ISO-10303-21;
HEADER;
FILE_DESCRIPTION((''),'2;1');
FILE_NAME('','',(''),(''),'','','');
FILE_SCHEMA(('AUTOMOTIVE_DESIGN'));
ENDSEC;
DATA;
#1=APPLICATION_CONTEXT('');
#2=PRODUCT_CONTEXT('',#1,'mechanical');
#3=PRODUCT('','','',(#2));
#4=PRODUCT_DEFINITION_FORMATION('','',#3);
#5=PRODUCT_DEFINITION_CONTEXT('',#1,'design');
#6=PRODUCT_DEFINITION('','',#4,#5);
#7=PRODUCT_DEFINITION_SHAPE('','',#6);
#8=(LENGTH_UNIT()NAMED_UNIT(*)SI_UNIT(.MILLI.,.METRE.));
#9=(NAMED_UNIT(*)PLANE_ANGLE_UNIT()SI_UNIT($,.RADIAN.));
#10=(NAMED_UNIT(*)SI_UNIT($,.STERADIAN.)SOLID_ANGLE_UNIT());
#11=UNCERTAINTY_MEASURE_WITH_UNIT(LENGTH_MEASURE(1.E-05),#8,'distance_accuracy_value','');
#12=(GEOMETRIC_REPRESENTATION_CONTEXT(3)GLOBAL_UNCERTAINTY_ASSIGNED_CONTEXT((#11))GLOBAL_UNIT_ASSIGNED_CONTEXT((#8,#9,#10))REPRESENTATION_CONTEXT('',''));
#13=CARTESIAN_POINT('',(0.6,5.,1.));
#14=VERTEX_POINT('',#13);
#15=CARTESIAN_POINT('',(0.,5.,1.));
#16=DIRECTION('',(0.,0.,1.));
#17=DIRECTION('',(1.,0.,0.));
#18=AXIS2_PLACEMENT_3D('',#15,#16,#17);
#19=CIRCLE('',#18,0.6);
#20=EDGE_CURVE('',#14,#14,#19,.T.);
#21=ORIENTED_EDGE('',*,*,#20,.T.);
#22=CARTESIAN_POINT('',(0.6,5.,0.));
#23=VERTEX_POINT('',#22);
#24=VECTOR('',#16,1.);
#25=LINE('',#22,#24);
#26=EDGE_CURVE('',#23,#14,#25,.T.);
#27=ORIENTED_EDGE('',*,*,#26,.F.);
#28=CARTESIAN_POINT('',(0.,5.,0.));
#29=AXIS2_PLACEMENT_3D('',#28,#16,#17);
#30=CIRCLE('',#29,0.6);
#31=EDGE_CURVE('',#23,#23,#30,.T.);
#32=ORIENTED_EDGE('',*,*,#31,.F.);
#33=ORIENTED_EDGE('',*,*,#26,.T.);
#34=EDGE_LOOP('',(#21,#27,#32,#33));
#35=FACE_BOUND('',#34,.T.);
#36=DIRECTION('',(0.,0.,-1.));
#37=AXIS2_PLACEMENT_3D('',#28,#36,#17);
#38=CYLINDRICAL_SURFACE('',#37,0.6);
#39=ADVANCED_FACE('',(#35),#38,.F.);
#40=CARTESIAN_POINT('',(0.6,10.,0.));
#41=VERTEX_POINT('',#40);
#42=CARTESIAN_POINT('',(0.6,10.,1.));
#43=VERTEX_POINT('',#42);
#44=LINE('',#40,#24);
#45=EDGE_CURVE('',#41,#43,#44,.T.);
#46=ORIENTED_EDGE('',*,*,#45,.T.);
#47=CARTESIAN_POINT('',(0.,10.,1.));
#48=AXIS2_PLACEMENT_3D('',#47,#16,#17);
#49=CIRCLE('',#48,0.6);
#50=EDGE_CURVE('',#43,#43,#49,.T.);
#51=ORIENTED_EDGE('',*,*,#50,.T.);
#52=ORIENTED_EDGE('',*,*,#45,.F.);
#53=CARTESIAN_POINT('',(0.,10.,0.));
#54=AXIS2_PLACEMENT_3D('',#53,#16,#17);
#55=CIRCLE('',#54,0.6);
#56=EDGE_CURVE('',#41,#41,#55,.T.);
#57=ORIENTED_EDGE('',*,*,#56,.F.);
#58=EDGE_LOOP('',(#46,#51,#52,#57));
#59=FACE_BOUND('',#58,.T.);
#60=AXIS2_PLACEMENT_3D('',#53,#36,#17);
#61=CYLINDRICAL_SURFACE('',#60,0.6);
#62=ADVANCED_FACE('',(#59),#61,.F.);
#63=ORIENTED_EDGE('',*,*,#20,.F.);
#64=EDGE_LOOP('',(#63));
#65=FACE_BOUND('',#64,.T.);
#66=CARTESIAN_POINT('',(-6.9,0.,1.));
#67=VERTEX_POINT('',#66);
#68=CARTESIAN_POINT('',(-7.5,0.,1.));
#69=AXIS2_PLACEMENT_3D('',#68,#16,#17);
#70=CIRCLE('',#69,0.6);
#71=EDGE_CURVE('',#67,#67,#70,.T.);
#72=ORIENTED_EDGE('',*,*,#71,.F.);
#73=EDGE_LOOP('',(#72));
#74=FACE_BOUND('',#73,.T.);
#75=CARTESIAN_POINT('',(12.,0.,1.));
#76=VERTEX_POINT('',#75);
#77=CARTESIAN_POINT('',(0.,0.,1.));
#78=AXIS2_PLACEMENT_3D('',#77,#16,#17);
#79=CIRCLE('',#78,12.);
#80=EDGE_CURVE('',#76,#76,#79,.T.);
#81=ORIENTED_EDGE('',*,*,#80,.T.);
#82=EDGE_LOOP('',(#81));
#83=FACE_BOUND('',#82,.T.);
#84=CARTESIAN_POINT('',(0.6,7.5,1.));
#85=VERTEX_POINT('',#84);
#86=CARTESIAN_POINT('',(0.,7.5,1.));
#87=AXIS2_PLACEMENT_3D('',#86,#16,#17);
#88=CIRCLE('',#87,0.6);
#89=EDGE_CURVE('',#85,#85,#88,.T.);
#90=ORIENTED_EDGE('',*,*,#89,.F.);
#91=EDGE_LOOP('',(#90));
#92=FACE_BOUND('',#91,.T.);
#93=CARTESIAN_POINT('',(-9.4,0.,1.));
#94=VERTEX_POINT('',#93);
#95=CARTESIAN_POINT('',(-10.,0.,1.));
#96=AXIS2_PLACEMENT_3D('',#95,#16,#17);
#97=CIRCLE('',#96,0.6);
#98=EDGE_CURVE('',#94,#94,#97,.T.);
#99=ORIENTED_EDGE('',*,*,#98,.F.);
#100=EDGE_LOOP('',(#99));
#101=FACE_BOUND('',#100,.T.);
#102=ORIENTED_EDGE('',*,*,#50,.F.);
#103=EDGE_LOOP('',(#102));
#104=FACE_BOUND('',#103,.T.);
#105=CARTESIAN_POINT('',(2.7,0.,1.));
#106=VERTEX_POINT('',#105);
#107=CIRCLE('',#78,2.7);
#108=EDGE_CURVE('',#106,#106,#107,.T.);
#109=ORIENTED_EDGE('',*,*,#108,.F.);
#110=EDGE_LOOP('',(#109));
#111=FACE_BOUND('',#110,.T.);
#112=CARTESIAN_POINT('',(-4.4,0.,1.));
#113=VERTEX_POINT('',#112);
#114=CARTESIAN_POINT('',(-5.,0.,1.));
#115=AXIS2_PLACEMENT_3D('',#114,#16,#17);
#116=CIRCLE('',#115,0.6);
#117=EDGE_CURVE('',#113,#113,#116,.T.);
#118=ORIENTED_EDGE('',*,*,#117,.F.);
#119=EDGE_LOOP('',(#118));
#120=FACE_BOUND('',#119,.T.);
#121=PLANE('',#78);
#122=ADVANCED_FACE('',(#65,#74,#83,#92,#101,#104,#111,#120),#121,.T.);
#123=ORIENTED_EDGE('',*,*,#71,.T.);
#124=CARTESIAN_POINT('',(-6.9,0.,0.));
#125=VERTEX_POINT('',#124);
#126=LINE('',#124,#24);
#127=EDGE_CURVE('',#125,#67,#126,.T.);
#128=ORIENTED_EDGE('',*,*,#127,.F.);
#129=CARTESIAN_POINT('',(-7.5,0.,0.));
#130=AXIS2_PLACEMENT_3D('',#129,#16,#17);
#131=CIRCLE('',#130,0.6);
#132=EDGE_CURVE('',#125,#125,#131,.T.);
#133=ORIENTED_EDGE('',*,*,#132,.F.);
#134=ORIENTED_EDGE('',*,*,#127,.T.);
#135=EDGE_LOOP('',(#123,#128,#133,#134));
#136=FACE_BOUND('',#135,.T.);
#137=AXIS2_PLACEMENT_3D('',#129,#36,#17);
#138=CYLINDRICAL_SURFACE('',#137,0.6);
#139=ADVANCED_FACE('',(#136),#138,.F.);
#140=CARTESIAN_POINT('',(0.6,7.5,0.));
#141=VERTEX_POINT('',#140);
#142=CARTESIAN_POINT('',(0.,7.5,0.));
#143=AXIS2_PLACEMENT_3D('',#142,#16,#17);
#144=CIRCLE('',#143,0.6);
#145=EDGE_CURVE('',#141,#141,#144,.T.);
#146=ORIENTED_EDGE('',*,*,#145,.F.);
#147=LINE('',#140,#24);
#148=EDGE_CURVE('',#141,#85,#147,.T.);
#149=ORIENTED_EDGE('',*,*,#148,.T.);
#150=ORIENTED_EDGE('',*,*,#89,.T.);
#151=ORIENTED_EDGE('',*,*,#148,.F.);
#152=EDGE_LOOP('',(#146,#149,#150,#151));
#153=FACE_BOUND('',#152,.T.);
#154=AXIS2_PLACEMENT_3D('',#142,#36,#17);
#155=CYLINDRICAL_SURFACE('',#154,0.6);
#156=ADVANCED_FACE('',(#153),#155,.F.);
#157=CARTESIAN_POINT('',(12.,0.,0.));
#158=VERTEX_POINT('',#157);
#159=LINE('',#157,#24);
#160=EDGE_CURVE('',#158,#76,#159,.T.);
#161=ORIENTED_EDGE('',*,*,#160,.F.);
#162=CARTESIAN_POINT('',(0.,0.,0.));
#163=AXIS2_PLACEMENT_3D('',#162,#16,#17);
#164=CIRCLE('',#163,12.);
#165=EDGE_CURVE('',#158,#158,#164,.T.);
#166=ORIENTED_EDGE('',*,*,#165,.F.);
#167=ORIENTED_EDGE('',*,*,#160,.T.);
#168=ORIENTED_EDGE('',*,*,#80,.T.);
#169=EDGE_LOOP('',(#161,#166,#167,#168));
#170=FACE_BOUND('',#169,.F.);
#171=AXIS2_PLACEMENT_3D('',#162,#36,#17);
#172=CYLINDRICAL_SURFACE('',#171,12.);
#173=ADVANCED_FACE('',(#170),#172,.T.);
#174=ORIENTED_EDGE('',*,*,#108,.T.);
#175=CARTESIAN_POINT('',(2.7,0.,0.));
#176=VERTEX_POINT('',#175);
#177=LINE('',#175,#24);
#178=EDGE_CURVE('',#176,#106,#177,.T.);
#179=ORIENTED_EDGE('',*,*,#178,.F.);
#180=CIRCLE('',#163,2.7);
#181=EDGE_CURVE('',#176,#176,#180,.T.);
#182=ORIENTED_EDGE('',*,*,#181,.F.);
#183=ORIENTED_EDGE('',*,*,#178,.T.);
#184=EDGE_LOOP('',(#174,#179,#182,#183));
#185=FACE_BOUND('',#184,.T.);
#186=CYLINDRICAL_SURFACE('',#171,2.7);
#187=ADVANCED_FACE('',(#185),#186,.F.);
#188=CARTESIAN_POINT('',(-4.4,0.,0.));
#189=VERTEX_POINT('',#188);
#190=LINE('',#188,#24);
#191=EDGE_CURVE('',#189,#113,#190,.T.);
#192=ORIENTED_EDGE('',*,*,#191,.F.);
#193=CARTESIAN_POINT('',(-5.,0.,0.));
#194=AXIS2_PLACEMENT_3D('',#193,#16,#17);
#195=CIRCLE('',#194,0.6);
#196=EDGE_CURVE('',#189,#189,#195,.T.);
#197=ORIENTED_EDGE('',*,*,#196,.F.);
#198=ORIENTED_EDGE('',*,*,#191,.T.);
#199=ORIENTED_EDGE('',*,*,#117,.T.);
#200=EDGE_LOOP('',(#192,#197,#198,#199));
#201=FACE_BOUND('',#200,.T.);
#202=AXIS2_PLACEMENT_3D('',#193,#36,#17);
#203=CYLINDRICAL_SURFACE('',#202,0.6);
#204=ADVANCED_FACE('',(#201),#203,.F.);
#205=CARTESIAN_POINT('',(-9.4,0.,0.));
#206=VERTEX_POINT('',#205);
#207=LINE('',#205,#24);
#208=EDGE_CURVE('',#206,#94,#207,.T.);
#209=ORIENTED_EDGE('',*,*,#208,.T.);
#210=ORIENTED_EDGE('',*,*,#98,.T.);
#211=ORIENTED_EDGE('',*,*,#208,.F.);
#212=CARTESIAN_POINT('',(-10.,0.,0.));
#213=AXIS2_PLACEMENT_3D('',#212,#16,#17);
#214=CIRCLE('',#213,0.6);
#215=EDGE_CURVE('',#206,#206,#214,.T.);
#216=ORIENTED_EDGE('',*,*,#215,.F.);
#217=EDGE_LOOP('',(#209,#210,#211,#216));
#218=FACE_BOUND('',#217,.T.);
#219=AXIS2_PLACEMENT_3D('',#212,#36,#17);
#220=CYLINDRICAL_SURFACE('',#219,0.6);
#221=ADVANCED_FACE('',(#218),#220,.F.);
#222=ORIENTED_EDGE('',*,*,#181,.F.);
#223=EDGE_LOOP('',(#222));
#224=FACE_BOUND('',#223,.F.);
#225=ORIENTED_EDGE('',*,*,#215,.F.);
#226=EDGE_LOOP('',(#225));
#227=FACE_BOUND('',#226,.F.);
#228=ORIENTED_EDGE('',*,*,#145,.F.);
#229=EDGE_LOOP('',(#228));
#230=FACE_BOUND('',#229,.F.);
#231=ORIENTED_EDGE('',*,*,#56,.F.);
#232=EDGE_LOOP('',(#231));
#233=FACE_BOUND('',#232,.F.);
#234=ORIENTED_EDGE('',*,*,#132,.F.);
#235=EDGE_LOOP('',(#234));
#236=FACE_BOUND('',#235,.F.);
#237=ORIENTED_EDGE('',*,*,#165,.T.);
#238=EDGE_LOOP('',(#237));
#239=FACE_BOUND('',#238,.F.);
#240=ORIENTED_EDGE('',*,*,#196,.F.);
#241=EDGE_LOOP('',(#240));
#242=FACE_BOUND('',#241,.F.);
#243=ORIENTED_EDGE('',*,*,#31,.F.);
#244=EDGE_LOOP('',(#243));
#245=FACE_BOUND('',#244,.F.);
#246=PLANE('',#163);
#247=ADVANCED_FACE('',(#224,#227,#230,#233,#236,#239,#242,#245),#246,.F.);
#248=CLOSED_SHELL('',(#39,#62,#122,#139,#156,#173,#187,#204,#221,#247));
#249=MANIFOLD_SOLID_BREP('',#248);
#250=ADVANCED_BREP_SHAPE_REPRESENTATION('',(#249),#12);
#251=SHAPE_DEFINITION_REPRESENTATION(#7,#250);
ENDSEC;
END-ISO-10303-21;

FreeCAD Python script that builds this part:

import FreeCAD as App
import Part
import Sketcher

V = App.Vector
Q = App.Units.Quantity

doc = App.newDocument("Part")
body = doc.addObject("PartDesign::Body", "Body")

# Sketch on XY plane
sketch1 = body.newObject("Sketcher::SketchObject", "Sketch")
sketch1.AttachmentSupport = (doc.getObject("XY_Plane"), [""])
sketch1.MapMode = "FlatFace"
sketch1.addGeometry(Part.Circle(V(0, 0, 0), V(0, 0, 1), 12), False)
sketch1.addGeometry(Part.Circle(V(-10, 0, 0), V(0, 0, 1), 0.6), False)
sketch1.addGeometry(Part.Circle(V(-7.5, 0, 0), V(0, 0, 1), 0.6), False)
sketch1.addGeometry(Part.Circle(V(-5, 0, 0), V(0, 0, 1), 0.6), False)
sketch1.addGeometry(Part.Circle(V(0, 0, 0), V(0, 0, 1), 2.7), False)
sketch1.addGeometry(Part.Circle(V(0, 5, 0), V(0, 0, 1), 0.6), False)
sketch1.addGeometry(Part.Circle(V(0, 7.5, 0), V(0, 0, 1), 0.6), False)
sketch1.addGeometry(Part.Circle(V(0, 10, 0), V(0, 0, 1), 0.6), False)
sketch1.addConstraint(Sketcher.Constraint("Coincident", 0, 3, -1, 1))
sketch1.addConstraint(Sketcher.Constraint("Coincident", 4, 3, -1, 1))
sketch1.addConstraint(Sketcher.Constraint("Equal", 1, 2))
sketch1.addConstraint(Sketcher.Constraint("Equal", 2, 3))
sketch1.addConstraint(Sketcher.Constraint("Equal", 3, 5))
sketch1.addConstraint(Sketcher.Constraint("Equal", 5, 6))
sketch1.addConstraint(Sketcher.Constraint("Equal", 6, 7))
sketch1.addConstraint(Sketcher.Constraint("PointOnObject", 1, 3, -1))
sketch1.addConstraint(Sketcher.Constraint("PointOnObject", 2, 3, -1))
sketch1.addConstraint(Sketcher.Constraint("PointOnObject", 3, 3, -1))
sketch1.addConstraint(Sketcher.Constraint("PointOnObject", 5, 3, -2))
sketch1.addConstraint(Sketcher.Constraint("PointOnObject", 6, 3, -2))
sketch1.addConstraint(Sketcher.Constraint("PointOnObject", 7, 3, -2))
sketch1.addConstraint(Sketcher.Constraint("Diameter", 0, Q("24 mm")))
sketch1.addConstraint(Sketcher.Constraint("Diameter", 1, Q("1.2 mm")))
sketch1.addConstraint(Sketcher.Constraint("Diameter", 4, Q("5.4 mm")))
sketch1.addConstraint(Sketcher.Constraint("DistanceX", 1, 3, -1, 1, Q("10 mm")))
sketch1.addConstraint(Sketcher.Constraint("DistanceX", 3, 3, -1, 1, Q("5 mm")))
sketch1.addConstraint(Sketcher.Constraint("DistanceY", -1, 1, 5, 3, Q("5 mm")))
sketch1.addConstraint(Sketcher.Constraint("DistanceY", -1, 1, 7, 3, Q("10 mm")))
sketch1.addConstraint(Sketcher.Constraint("DistanceX", 2, 3, -1, 1, Q("7.5 mm")))
sketch1.addConstraint(Sketcher.Constraint("DistanceY", -1, 1, 6, 3, Q("7.5 mm")))
pad1 = body.newObject("PartDesign::Pad", "Pad")
pad1.Profile = sketch1
pad1.Length = 1

doc.recompute()
